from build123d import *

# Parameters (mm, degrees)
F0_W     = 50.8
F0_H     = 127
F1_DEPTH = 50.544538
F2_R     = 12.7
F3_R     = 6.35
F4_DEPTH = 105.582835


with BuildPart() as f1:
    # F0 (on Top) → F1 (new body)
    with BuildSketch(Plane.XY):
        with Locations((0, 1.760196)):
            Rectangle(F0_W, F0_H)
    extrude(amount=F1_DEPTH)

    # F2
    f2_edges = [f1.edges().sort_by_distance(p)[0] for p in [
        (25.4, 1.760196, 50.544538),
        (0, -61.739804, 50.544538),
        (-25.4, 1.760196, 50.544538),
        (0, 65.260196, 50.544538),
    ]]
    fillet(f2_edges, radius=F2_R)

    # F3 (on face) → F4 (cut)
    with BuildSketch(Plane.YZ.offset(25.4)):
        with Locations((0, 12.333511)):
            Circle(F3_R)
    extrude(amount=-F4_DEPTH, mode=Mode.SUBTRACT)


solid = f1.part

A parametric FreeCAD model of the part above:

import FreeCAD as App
import Part
import Sketcher

V = App.Vector
Q = App.Units.Quantity


def edges_at(feature, points):
    """Names of the edges that pass closest to the given points."""
    edges = feature.Shape.Edges
    near = lambda p: min(range(len(edges)), key=lambda i: edges[i].distToShape(Part.Vertex(*p))[0])
    return sorted({f"Edge{near(p) + 1}" for p in points})

doc = App.newDocument("Part")
body = doc.addObject("PartDesign::Body", "Body")

# Sketch on XY plane
sketch1 = body.newObject("Sketcher::SketchObject", "Sketch")
sketch1.AttachmentSupport = (doc.getObject("XY_Plane"), [""])
sketch1.MapMode = "FlatFace"
sketch1.addGeometry(Part.LineSegment(V(-25, 65, 0), V(-25, -62, 0)), False)
sketch1.addGeometry(Part.LineSegment(V(-25, -62, 0), V(25, -62, 0)), False)
sketch1.addGeometry(Part.LineSegment(V(25, -62, 0), V(25, 65, 0)), False)
sketch1.addGeometry(Part.LineSegment(V(25, 65, 0), V(-25, 65, 0)), False)
sketch1.addConstraint(Sketcher.Constraint("Coincident", 0, 2, 1, 1))
sketch1.addConstraint(Sketcher.Constraint("Coincident", 1, 2, 2, 1))
sketch1.addConstraint(Sketcher.Constraint("Coincident", 2, 2, 3, 1))
sketch1.addConstraint(Sketcher.Constraint("Coincident", 3, 2, 0, 1))
sketch1.addConstraint(Sketcher.Constraint("Vertical", 0))
sketch1.addConstraint(Sketcher.Constraint("Horizontal", 1))
sketch1.addConstraint(Sketcher.Constraint("Vertical", 2))
sketch1.addConstraint(Sketcher.Constraint("Horizontal", 3))
sketch1.addConstraint(Sketcher.Constraint("DistanceX", 1, 1, 1, 2, Q("2 in")))
sketch1.addConstraint(Sketcher.Constraint("DistanceY", 0, 2, 0, 1, Q("5 in")))
sketch1.addConstraint(Sketcher.Constraint("DistanceX", 0, 2, -1, 1, Q("1 in")))
sketch1.addConstraint(Sketcher.Constraint("DistanceY", 0, 2, -1, 1, 61.739804))
pad1 = body.newObject("PartDesign::Pad", "Pad")
pad1.Profile = sketch1
pad1.Length = 50.544538
doc.recompute()

fillet = body.newObject("PartDesign::Fillet", "Fillet")
fillet.Base = (pad1, edges_at(pad1, [
    (25.4, 1.76, 50.545),
    (0, -61.74, 50.545),
    (-25.4, 1.76, 50.545),
    (0, 65.26, 50.545),
]))
fillet.Radius = Q("0.5 in")

# Sketch on YZ plane
sketch2 = body.newObject("Sketcher::SketchObject", "Sketch001")
sketch2.AttachmentSupport = (doc.getObject("YZ_Plane"), [""])
sketch2.MapMode = "FlatFace"
sketch2.AttachmentOffset = App.Placement(V(0, 0, 1 * 25.4), App.Rotation())
sketch2.addGeometry(Part.Circle(V(0, 12, 0), V(0, 0, 1), 6), False)
sketch2.addConstraint(Sketcher.Constraint("PointOnObject", 0, 3, -2))
sketch2.addConstraint(Sketcher.Constraint("Diameter", 0, Q("0.5 in")))
sketch2.addConstraint(Sketcher.Constraint("DistanceY", -1, 1, 0, 3, 12.333511))
pocket1 = body.newObject("PartDesign::Pocket", "Pocket")
pocket1.Profile = sketch2
pocket1.Length = 105.582835

doc.recompute()
